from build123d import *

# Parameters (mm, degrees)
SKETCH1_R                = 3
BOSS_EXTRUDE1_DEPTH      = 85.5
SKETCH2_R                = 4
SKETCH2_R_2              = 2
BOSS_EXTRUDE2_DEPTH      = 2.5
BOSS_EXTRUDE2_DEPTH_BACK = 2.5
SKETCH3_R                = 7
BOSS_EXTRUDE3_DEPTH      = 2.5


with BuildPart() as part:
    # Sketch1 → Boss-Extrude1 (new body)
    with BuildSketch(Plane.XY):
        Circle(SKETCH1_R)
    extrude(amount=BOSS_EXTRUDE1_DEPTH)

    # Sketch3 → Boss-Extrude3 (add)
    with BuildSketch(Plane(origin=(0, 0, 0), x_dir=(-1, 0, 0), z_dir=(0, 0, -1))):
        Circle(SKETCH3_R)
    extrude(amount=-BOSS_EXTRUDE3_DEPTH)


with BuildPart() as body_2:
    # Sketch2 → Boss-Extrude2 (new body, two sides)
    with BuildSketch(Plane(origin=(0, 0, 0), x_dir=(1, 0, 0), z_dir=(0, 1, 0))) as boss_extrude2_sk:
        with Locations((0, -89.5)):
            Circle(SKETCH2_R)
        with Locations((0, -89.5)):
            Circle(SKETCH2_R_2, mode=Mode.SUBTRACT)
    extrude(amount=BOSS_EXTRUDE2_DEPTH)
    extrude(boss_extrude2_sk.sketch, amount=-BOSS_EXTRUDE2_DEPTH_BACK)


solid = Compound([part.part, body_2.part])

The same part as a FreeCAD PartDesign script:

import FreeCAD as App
import Part
import Sketcher
Q = App.Units.Quantity

doc = App.newDocument("Part")
body = doc.addObject("PartDesign::Body", "Body")

# Sketch on XY plane
sketch1 = body.newObject("Sketcher::SketchObject", "Sketch")
sketch1.AttachmentSupport = (doc.getObject("XY_Plane"), [""])
sketch1.MapMode = "FlatFace"
sketch1.addGeometry(Part.Circle(App.Vector(0, 0, 0), App.Vector(0, 0, 1), 3), False)
sketch1.addConstraint(Sketcher.Constraint("Coincident", 0, 3, -1, 1))
sketch1.addConstraint(Sketcher.Constraint("Diameter", 0, Q("6 mm")))
pad1 = body.newObject("PartDesign::Pad", "Pad")
pad1.Profile = sketch1
pad1.Length = 85.5

# Sketch on XY plane
sketch2 = body.newObject("Sketcher::SketchObject", "Sketch001")
sketch2.AttachmentSupport = (doc.getObject("XY_Plane"), [""])
sketch2.MapMode = "FlatFace"
sketch2.addGeometry(Part.Circle(App.Vector(0, 0, 0), App.Vector(0, 0, 1), 7), False)
sketch2.addConstraint(Sketcher.Constraint("Coincident", 0, 3, -1, 1))
sketch2.addConstraint(Sketcher.Constraint("Diameter", 0, Q("14 mm")))
pad2 = body.newObject("PartDesign::Pad", "Pad001")
pad2.Profile = sketch2
pad2.Length = 2.5
body2 = doc.addObject("PartDesign::Body", "Body001")

# Sketch on XZ plane
sketch3 = body2.newObject("Sketcher::SketchObject", "Sketch002")
sketch3.AttachmentSupport = (doc.getObject("XZ_Plane001"), [""])
sketch3.MapMode = "FlatFace"
sketch3.addGeometry(Part.Circle(App.Vector(0, 89.5, 0), App.Vector(0, 0, 1), 4), False)
sketch3.addGeometry(Part.Circle(App.Vector(0, 89.5, 0), App.Vector(0, 0, 1), 2), False)
sketch3.addConstraint(Sketcher.Constraint("Coincident", 1, 3, 0, 3))
sketch3.addConstraint(Sketcher.Constraint("PointOnObject", 0, 3, -2))
sketch3.addConstraint(Sketcher.Constraint("Diameter", 0, Q("8 mm")))
sketch3.addConstraint(Sketcher.Constraint("Diameter", 1, Q("4 mm")))
sketch3.addConstraint(Sketcher.Constraint("DistanceY", -1, 1, 0, 3, Q("89.5 mm")))
pad3 = body2.newObject("PartDesign::Pad", "Pad002")
pad3.Profile = sketch3
pad3.Type = "TwoLengths"
pad3.Length = 2.5
pad3.Length2 = 2.5
pad3.Reversed = True

doc.recompute()
